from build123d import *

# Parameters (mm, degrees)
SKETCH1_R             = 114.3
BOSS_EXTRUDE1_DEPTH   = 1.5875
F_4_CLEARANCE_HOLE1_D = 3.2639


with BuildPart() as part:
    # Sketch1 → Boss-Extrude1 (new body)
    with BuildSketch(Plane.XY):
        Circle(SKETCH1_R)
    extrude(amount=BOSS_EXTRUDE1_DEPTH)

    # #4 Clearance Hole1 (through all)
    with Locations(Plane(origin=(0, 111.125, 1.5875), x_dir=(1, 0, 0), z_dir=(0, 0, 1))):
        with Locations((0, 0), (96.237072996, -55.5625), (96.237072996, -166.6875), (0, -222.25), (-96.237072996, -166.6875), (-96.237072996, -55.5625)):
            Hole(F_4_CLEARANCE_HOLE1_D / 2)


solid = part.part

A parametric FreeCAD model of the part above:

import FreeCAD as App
import Part
import Sketcher

V = App.Vector
Q = App.Units.Quantity

doc = App.newDocument("Part")
body = doc.addObject("PartDesign::Body", "Body")

sketch1 = body.newObject("Sketcher::SketchObject", "Sketch")
sketch1.AttachmentSupport = (doc.getObject("XY_Plane"), [""])
sketch1.MapMode = "FlatFace"
sketch1.addGeometry(Part.Circle(V(0, 0, 0), V(0, 0, 1), 114), False)
sketch1.addConstraint([
    Sketcher.Constraint("Coincident", 0, 3, -1, 1),
    Sketcher.Constraint("Diameter", 0, Q("9 in")),
])
pad1 = body.newObject("PartDesign::Pad", "Pad")
pad1.Profile = sketch1
pad1.Length = Q("0.0625 in")

sketch2 = body.newObject("Sketcher::SketchObject", "Sketch001")
sketch2.AttachmentSupport = (doc.getObject("XY_Plane"), [""])
sketch2.MapMode = "FlatFace"
sketch2.AttachmentOffset = App.Placement(V(0, 0, 0.0625 * 25.4), App.Rotation())
sketch2.addGeometry([
    Part.Circle(V(0, 111.1, 0), V(0, 0, 1), 1.6),
    Part.Circle(V(96.2, 55.6, 0), V(0, 0, 1), 1.6),
    Part.Circle(V(96.2, -55.6, 0), V(0, 0, 1), 1.6),
    Part.Circle(V(0, -111.1, 0), V(0, 0, 1), 1.6),
    Part.Circle(V(-96.2, -55.6, 0), V(0, 0, 1), 1.6),
    Part.Circle(V(-96.2, 55.6, 0), V(0, 0, 1), 1.6),
], False)
sketch2.addConstraint([
    Sketcher.Constraint("Equal", 0, 1),
    Sketcher.Constraint("Equal", 1, 2),
    Sketcher.Constraint("Equal", 2, 3),
    Sketcher.Constraint("Equal", 3, 4),
    Sketcher.Constraint("Equal", 4, 5),
    Sketcher.Constraint("Symmetric", 0, 3, 3, 3, -1, 1),
    Sketcher.Constraint("Symmetric", 1, 3, 4, 3, -1, 1),
    Sketcher.Constraint("Symmetric", 2, 3, 5, 3, -1, 1),
    Sketcher.Constraint("Symmetric", 2, 3, 4, 3, -2),
    Sketcher.Constraint("PointOnObject", 0, 3, -2),
    Sketcher.Constraint("Diameter", 0, Q("0.1285 in")),
    Sketcher.Constraint("DistanceY", 3, 3, 0, 3, Q("8.75 in")),
    Sketcher.Constraint("DistanceY", -1, 1, 1, 3, Q("2.1875 in")),
    Sketcher.Constraint("DistanceX", -1, 1, 1, 3, Q("96.237073 mm")),
])
doc.recompute()
hole = body.newObject("PartDesign::Hole", "Hole")
hole.Profile = sketch2
hole.ThreadType = "None"
hole.Diameter = Q("0.1285 in")
hole.DepthType = "ThroughAll"

doc.recompute()
